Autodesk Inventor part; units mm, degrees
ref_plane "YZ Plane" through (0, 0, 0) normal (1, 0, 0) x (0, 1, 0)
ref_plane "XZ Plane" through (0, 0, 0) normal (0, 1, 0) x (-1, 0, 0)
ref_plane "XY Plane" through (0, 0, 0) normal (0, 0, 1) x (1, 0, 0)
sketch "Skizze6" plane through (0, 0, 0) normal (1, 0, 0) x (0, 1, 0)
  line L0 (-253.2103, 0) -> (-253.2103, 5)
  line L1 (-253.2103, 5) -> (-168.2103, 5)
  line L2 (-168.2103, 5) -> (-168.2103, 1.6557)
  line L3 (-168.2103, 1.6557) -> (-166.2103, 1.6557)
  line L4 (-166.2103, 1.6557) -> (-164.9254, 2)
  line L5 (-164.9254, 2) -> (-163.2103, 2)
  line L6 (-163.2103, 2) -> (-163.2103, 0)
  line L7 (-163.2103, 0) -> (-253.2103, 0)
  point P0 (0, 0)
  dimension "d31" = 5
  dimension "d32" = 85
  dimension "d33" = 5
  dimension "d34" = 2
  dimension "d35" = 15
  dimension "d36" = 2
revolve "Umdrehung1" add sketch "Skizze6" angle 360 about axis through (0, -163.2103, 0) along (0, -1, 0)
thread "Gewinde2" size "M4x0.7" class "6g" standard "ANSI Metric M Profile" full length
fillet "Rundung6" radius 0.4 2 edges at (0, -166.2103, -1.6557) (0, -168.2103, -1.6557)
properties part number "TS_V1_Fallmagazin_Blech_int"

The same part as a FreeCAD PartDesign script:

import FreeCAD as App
import Part
import Sketcher
Q = App.Units.Quantity


def edges_at(feature, points):
    """Names of the edges that pass closest to the given points."""
    edges = feature.Shape.Edges
    near = lambda p: min(range(len(edges)), key=lambda i: edges[i].distToShape(Part.Vertex(*p))[0])
    return sorted({f"Edge{near(p) + 1}" for p in points})


def add_polygon(sketch, points):
    """Adds a closed chain of lines whose ends are joined by coincident constraints."""
    first, n = sketch.GeometryCount, len(points)
    for a, b in zip(points, points[1:] + points[:1]):
        sketch.addGeometry(Part.LineSegment(App.Vector(*a, 0), App.Vector(*b, 0)), False)
    for i in range(n):
        sketch.addConstraint(Sketcher.Constraint("Coincident", first + i, 2, first + (i + 1) % n, 1))

doc = App.newDocument("Part")
body = doc.addObject("PartDesign::Body", "Body")

# Sketch on YZ plane
sketch1 = doc.addObject("Sketcher::SketchObject", "Sketch")
body.addObject(sketch1)
sketch1.AttachmentSupport = (doc.YZ_Plane, [""])
sketch1.MapMode = "FlatFace"
add_polygon(sketch1, [(-253.2, 5), (-253.2, 0), (-163.2, 0), (-163.2, 2), (-164.9, 2), (-166.2, 1.7), (-168.2, 1.7), (-168.2, 5)])  # lines 0-7
sketch1.addConstraint([
    Sketcher.Constraint("Vertical", 0),
    Sketcher.Constraint("Horizontal", 1),
    Sketcher.Constraint("Vertical", 2),
    Sketcher.Constraint("Horizontal", 3),
    Sketcher.Constraint("Horizontal", 5),
    Sketcher.Constraint("Vertical", 6),
    Sketcher.Constraint("Horizontal", 7),
    Sketcher.Constraint("PointOnObject", 0, 2, -1),
    Sketcher.Constraint("Equal", 5, 2),
    Sketcher.Constraint("DistanceX", 5, 2, 5, 1, 2.0),
    Sketcher.Constraint("DistanceX", 7, 2, 7, 1, 85.0),
    Sketcher.Constraint("DistanceY", 0, 2, 0, 1, 5.0),
    Sketcher.Constraint("DistanceX", 5, 2, 2, 2, 5.0),
    Sketcher.Constraint("Angle", 4, Q("-164.9995 deg")),
    Sketcher.Constraint("DistanceX", 3, 2, 3, 1, 1.715),
    Sketcher.Constraint("DistanceX", 0, 2, -1, 1, 253.2103),
])
revolution = doc.addObject("PartDesign::Revolution", "Revolution")
body.addObject(revolution)
revolution.Profile = sketch1
revolution.ReferenceAxis = (sketch1, ["H_Axis"])
revolution.Angle = 360
doc.recompute()

fillet = doc.addObject("PartDesign::Fillet", "Fillet")
body.addObject(fillet)
fillet.Base = (revolution, edges_at(revolution, [(0, -166.21, -1.656), (0, -168.21, -1.656)]))
fillet.Radius = 0.4

doc.recompute()
